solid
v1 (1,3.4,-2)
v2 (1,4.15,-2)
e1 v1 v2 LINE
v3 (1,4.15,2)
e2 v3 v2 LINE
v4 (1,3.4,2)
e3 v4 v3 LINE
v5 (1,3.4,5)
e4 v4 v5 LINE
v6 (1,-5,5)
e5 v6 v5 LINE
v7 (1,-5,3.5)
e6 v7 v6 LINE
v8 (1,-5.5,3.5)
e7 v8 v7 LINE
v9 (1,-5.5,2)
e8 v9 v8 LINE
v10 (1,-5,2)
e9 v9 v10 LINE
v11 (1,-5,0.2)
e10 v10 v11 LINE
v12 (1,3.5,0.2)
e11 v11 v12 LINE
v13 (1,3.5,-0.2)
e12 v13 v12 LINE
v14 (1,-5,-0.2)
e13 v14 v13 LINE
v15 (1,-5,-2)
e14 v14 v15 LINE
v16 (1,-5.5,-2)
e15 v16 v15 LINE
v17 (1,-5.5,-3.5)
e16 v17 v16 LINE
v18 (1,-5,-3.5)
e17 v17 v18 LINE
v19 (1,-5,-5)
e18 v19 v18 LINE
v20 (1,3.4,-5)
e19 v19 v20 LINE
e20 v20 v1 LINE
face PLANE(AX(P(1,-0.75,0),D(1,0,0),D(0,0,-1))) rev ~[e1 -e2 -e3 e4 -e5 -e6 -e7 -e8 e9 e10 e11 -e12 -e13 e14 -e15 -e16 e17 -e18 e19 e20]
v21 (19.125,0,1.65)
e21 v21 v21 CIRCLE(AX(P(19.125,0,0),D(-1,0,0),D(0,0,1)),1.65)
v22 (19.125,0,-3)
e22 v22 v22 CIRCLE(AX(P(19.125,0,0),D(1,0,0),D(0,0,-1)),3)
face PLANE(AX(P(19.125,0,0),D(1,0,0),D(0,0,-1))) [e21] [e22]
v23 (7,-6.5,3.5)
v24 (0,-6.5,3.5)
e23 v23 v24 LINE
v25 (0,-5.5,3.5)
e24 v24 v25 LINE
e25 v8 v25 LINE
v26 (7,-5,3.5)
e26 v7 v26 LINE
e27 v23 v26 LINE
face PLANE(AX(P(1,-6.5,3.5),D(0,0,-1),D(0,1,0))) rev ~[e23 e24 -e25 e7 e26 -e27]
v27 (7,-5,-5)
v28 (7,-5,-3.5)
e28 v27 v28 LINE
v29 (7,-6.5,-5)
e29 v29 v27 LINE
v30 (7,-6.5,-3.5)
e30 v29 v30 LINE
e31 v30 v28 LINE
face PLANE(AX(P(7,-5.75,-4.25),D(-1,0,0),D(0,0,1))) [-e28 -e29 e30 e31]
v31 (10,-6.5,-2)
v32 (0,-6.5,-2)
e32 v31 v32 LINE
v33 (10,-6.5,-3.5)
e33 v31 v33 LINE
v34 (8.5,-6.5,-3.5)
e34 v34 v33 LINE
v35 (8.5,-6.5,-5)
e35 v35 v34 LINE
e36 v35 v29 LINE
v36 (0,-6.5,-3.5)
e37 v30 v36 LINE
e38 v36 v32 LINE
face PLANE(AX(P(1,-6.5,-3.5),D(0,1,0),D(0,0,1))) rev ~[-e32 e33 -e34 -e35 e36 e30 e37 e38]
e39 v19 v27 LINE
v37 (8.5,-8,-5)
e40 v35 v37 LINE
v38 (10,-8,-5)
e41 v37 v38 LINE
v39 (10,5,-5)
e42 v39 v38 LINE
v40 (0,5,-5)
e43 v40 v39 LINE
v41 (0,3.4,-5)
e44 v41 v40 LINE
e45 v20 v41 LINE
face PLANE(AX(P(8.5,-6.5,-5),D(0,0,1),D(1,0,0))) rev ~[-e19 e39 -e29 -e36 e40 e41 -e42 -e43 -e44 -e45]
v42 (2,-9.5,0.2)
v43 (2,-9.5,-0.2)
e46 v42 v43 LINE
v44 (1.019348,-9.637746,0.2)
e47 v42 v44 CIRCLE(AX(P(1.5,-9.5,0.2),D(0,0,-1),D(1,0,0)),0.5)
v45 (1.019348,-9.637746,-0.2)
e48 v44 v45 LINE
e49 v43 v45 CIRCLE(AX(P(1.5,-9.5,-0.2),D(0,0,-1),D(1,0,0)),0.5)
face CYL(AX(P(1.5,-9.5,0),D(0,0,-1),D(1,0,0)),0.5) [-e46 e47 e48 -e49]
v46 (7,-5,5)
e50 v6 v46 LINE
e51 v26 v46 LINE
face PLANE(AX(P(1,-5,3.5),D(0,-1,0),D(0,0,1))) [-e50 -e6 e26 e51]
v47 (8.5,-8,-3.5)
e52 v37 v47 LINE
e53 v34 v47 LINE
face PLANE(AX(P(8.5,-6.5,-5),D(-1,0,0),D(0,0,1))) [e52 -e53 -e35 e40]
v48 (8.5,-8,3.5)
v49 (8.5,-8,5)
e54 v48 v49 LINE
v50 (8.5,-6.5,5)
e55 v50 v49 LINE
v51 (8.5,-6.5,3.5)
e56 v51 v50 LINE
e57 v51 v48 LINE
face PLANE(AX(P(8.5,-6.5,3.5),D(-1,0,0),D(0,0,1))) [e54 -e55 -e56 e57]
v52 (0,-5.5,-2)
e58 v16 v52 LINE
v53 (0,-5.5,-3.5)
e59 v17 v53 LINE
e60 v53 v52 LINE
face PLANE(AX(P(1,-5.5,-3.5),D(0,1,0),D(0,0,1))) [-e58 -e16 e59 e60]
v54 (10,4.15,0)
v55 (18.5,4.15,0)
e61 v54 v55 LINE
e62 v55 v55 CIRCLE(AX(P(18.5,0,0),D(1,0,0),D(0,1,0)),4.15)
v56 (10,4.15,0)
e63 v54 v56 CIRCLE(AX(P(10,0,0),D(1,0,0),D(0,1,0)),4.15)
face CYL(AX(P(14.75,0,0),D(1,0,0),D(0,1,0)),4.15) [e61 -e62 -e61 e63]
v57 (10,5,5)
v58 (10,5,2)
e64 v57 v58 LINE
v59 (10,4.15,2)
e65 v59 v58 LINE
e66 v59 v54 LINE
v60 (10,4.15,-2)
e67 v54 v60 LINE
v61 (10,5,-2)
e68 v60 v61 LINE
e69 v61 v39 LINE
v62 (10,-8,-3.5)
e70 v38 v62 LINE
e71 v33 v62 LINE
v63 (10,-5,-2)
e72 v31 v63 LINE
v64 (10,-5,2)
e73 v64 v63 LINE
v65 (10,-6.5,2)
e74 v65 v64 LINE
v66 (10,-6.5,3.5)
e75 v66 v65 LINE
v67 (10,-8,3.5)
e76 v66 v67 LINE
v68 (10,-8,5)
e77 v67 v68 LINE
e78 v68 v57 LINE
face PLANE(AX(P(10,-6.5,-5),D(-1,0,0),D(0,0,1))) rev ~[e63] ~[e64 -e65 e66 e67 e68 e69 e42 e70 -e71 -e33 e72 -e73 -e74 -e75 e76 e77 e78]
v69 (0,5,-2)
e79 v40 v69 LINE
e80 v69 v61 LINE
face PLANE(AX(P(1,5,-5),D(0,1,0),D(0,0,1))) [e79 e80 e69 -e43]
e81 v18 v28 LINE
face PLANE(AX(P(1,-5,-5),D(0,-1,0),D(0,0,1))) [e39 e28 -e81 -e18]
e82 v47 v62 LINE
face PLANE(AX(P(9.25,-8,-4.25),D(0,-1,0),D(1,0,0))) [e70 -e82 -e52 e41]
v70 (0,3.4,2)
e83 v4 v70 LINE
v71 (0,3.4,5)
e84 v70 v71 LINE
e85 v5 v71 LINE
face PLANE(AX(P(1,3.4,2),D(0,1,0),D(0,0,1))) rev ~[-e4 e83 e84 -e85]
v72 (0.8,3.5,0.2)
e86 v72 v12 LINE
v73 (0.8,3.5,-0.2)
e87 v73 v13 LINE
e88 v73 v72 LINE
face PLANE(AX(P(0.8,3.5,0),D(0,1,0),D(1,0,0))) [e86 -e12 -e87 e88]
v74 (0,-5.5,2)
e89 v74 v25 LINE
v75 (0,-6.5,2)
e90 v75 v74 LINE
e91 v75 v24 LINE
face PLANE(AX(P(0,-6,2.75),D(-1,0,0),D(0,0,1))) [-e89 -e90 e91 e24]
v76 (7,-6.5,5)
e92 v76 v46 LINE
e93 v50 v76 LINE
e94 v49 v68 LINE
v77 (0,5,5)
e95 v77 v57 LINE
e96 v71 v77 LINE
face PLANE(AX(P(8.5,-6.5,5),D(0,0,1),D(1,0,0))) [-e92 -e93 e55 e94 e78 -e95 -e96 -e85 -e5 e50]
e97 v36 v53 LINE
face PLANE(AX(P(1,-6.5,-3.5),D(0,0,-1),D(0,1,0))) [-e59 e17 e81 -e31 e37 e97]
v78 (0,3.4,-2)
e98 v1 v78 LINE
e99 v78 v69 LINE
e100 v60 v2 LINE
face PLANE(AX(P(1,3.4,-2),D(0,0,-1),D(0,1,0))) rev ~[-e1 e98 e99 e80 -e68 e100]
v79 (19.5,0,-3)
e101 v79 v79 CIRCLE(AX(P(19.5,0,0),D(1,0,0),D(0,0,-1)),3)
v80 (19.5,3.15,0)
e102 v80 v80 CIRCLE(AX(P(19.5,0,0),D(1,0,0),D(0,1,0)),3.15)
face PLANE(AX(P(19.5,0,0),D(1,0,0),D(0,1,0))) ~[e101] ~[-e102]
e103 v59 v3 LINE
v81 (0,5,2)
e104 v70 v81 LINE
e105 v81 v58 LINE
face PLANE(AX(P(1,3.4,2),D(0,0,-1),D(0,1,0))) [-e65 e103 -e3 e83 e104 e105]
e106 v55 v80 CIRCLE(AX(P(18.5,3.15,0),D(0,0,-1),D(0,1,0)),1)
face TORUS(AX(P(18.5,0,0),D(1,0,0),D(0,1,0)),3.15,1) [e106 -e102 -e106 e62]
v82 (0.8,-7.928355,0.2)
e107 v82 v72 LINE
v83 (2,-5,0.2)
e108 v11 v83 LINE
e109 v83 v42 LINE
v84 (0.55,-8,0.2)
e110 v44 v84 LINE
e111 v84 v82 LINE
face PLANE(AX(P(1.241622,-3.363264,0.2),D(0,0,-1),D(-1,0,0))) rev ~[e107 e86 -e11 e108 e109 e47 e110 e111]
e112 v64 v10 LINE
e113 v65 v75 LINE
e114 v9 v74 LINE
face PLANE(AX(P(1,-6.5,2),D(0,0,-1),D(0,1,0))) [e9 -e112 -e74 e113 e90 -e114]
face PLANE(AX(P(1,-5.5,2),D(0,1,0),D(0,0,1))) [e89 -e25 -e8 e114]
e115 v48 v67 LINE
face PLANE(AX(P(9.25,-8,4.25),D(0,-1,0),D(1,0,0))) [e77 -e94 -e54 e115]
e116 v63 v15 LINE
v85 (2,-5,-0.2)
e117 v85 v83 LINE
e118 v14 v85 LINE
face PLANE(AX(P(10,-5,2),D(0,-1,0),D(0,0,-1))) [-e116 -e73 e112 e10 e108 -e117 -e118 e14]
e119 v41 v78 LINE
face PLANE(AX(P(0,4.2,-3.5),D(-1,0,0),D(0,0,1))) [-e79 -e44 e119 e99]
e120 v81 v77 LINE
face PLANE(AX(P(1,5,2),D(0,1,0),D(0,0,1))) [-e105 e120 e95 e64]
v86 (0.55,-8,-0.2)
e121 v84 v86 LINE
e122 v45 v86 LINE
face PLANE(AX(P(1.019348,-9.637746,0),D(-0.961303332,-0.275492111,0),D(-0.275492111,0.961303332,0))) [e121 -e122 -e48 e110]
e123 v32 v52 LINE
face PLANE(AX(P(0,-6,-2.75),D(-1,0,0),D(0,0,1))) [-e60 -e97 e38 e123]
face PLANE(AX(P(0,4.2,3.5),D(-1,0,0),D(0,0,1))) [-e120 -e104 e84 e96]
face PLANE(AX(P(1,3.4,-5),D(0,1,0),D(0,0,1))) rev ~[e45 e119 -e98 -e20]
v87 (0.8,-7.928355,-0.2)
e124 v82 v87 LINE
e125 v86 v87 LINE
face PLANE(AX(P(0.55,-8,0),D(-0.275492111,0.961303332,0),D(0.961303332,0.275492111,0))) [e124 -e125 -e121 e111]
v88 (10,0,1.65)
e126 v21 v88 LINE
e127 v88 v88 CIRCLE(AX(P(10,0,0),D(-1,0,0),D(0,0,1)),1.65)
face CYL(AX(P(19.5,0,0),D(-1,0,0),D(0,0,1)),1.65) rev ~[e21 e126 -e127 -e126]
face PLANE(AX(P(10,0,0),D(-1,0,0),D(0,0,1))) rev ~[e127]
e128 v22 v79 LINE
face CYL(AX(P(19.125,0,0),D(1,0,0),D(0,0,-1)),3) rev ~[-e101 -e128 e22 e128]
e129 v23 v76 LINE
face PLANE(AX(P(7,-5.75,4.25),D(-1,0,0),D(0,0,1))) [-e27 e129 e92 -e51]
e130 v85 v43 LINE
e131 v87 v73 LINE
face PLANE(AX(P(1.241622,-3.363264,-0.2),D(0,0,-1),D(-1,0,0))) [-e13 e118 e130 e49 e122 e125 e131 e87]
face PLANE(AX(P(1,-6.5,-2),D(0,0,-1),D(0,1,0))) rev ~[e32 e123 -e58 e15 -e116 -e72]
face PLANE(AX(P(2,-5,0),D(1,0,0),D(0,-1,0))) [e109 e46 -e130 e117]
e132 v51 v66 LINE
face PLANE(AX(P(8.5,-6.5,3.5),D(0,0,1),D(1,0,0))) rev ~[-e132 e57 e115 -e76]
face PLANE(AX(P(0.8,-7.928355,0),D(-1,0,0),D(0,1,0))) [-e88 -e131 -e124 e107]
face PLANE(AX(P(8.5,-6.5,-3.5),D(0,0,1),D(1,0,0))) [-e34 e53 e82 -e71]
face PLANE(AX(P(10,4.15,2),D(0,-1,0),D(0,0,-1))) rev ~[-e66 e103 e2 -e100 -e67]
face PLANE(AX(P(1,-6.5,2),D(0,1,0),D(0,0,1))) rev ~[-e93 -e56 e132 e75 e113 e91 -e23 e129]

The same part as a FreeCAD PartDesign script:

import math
import FreeCAD as App
import Part
import Sketcher

V = App.Vector


def edges_at(feature, points):
    """Names of the edges that pass closest to the given points."""
    edges = feature.Shape.Edges
    near = lambda p: min(range(len(edges)), key=lambda i: edges[i].distToShape(Part.Vertex(*p))[0])
    return sorted({f"Edge{near(p) + 1}" for p in points})

doc = App.newDocument("Part")
params = doc.addObject("Spreadsheet::Sheet", "Params")
for row, (alias, value) in enumerate([
    ("sketch1_height", "10 mm"),
    ("sketch1_width", "11.5 mm"),
    ("pad1_length", "9 mm"),
    ("sketch2_height", "4 mm"),
    ("sketch2_width", "0.85 mm"),
    ("sketch3_height", "3 mm"),
    ("sketch3_width", "1.6 mm"),
    ("pad2_length", "1 mm"),
    ("sketch4_height", "3 mm"),
    ("sketch4_width", "1.6 mm"),
    ("pad3_length", "1 mm"),
    ("sketch5_height", "4 mm"),
    ("sketch5_width", "1.5 mm"),
    ("sketch6_width", "1 mm"),
    ("sketch6_height", "1.5 mm"),
    ("pad4_length", "1 mm"),
    ("sketch7_width", "1.5 mm"),
    ("pocket3_length", "6 mm"),
    ("sketch8_width", "1 mm"),
    ("sketch8_height", "1.5 mm"),
    ("pad5_length", "1 mm"),
    ("sketch9_width", "1.5 mm"),
    ("pocket4_length", "6 mm"),
    ("sketch10_width", "1.5 mm"),
    ("pad6_length", "1.5 mm"),
    ("sketch11_width", "1.5 mm"),
    ("pad7_length", "1.5 mm"),
    ("sketch12_width", "9.5 mm"),
    ("sketch12_height", "4.15 mm"),
    ("revolution_angle", "360 deg"),
    ("sketch13_diameter", "3.3 mm"),
    ("hole_diameter", "3.3 mm"),
    ("hole_depth", "9.5 mm"),
    ("hole_cbore_diameter", "6 mm"),
    ("hole_cbore_depth", "0.375 mm"),
    ("fillet_radius", "1 mm"),
    ("sketch14_radius", "0.5 mm"),
    ("sketch14_width", "0.2 mm"),
    ("sketch14_height", "4.5 mm"),
    ("pad8_length", "0.4 mm"),
], start=1):
    params.set(f"A{row}", alias)
    params.set(f"B{row}", "=" + value)
    params.setAlias(f"B{row}", alias)

body = doc.addObject("PartDesign::Body", "Body")

# Sketch on YZ plane
sketch1 = doc.addObject("Sketcher::SketchObject", "Sketch")
body.addObject(sketch1)
sketch1.AttachmentSupport = (doc.YZ_Plane, [""])
sketch1.MapMode = "FlatFace"
sketch1.AttachmentOffset = App.Placement(V(0, 0, 10), App.Rotation())
sketch1.addGeometry([
    Part.LineSegment(V(5, 5, 0), V(-6, 5, 0)),
    Part.LineSegment(V(-6, 5, 0), V(-6, -5, 0)),
    Part.LineSegment(V(-6, -5, 0), V(5, -5, 0)),
    Part.LineSegment(V(5, -5, 0), V(5, 5, 0)),
], False)
sketch1.addConstraint([
    Sketcher.Constraint("Coincident", 0, 2, 1, 1),
    Sketcher.Constraint("Coincident", 1, 2, 2, 1),
    Sketcher.Constraint("Coincident", 2, 2, 3, 1),
    Sketcher.Constraint("Coincident", 3, 2, 0, 1),
    Sketcher.Constraint("Horizontal", 0),
    Sketcher.Constraint("Vertical", 1),
    Sketcher.Constraint("Horizontal", 2),
    Sketcher.Constraint("Vertical", 3),
    Sketcher.Constraint("DistanceY", 1, 2, 1, 1, 10.0),
    Sketcher.Constraint("DistanceX", 0, 2, 0, 1, 11.5),
    Sketcher.Constraint("DistanceY", -1, 1, 0, 2, 5.0),
    Sketcher.Constraint("DistanceX", -1, 1, 2, 2, 5.0),
])
sketch1.setExpression("Constraints[8]", "Params.sketch1_height")
sketch1.setExpression("Constraints[9]", "Params.sketch1_width")
pad1 = doc.addObject("PartDesign::Pad", "Pad")
body.addObject(pad1)
pad1.Profile = sketch1
pad1.setExpression("Length", "Params.pad1_length")
pad1.Reversed = True

# Sketch on YZ plane
sketch2 = doc.addObject("Sketcher::SketchObject", "Sketch001")
body.addObject(sketch2)
sketch2.AttachmentSupport = (doc.YZ_Plane, [""])
sketch2.MapMode = "FlatFace"
sketch2.AttachmentOffset = App.Placement(V(0, 0, 10), App.Rotation())
sketch2.addGeometry([
    Part.LineSegment(V(5, 2, 0), V(4.2, 2, 0)),
    Part.LineSegment(V(4.2, 2, 0), V(4.2, -2, 0)),
    Part.LineSegment(V(4.2, -2, 0), V(5, -2, 0)),
    Part.LineSegment(V(5, -2, 0), V(5, 2, 0)),
], False)
sketch2.addConstraint([
    Sketcher.Constraint("Coincident", 0, 2, 1, 1),
    Sketcher.Constraint("Coincident", 1, 2, 2, 1),
    Sketcher.Constraint("Coincident", 2, 2, 3, 1),
    Sketcher.Constraint("Coincident", 3, 2, 0, 1),
    Sketcher.Constraint("Horizontal", 0),
    Sketcher.Constraint("Vertical", 1),
    Sketcher.Constraint("Horizontal", 2),
    Sketcher.Constraint("Vertical", 3),
    Sketcher.Constraint("DistanceY", 1, 2, 1, 1, 4.0),
    Sketcher.Constraint("DistanceY", -1, 1, 0, 2, 2.0),
    Sketcher.Constraint("DistanceX", -1, 1, 2, 2, 5.0),
    Sketcher.Constraint("DistanceX", 0, 2, 0, 1, 0.85),
])
sketch2.setExpression("Constraints[8]", "Params.sketch2_height")
sketch2.setExpression("Constraints[11]", "Params.sketch2_width")
pocket1 = doc.addObject("PartDesign::Pocket", "Pocket")
body.addObject(pocket1)
pocket1.Profile = sketch2
pocket1.Type = "ThroughAll"

# Sketch on YZ plane
sketch3 = doc.addObject("Sketcher::SketchObject", "Sketch002")
body.addObject(sketch3)
sketch3.AttachmentSupport = (doc.YZ_Plane, [""])
sketch3.MapMode = "FlatFace"
sketch3.AttachmentOffset = App.Placement(V(0, 0, 1), App.Rotation())
sketch3.addGeometry([
    Part.LineSegment(V(5, 2, 0), V(3.4, 2, 0)),
    Part.LineSegment(V(3.4, 2, 0), V(3.4, 5, 0)),
    Part.LineSegment(V(3.4, 5, 0), V(5, 5, 0)),
    Part.LineSegment(V(5, 5, 0), V(5, 2, 0)),
], False)
sketch3.addConstraint([
    Sketcher.Constraint("Coincident", 0, 2, 1, 1),
    Sketcher.Constraint("Coincident", 1, 2, 2, 1),
    Sketcher.Constraint("Coincident", 2, 2, 3, 1),
    Sketcher.Constraint("Coincident", 3, 2, 0, 1),
    Sketcher.Constraint("Horizontal", 0),
    Sketcher.Constraint("Vertical", 1),
    Sketcher.Constraint("Horizontal", 2),
    Sketcher.Constraint("Vertical", 3),
    Sketcher.Constraint("DistanceY", 1, 1, 1, 2, 3.0),
    Sketcher.Constraint("DistanceX", 0, 2, 0, 1, 1.6),
    Sketcher.Constraint("DistanceY", -1, 1, 0, 2, 2.0),
    Sketcher.Constraint("DistanceX", -1, 1, 2, 2, 5.0),
])
sketch3.setExpression("Constraints[8]", "Params.sketch3_height")
sketch3.setExpression("Constraints[9]", "Params.sketch3_width")
pad2 = doc.addObject("PartDesign::Pad", "Pad001")
body.addObject(pad2)
pad2.Profile = sketch3
pad2.setExpression("Length", "Params.pad2_length")
pad2.Reversed = True

# Sketch on YZ plane
sketch4 = doc.addObject("Sketcher::SketchObject", "Sketch003")
body.addObject(sketch4)
sketch4.AttachmentSupport = (doc.YZ_Plane, [""])
sketch4.MapMode = "FlatFace"
sketch4.AttachmentOffset = App.Placement(V(0, 0, 1), App.Rotation())
sketch4.addGeometry([
    Part.LineSegment(V(5, -5, 0), V(3.4, -5, 0)),
    Part.LineSegment(V(3.4, -5, 0), V(3.4, -2, 0)),
    Part.LineSegment(V(3.4, -2, 0), V(5, -2, 0)),
    Part.LineSegment(V(5, -2, 0), V(5, -5, 0)),
], False)
sketch4.addConstraint([
    Sketcher.Constraint("Coincident", 0, 2, 1, 1),
    Sketcher.Constraint("Coincident", 1, 2, 2, 1),
    Sketcher.Constraint("Coincident", 2, 2, 3, 1),
    Sketcher.Constraint("Coincident", 3, 2, 0, 1),
    Sketcher.Constraint("Horizontal", 0),
    Sketcher.Constraint("Vertical", 1),
    Sketcher.Constraint("Horizontal", 2),
    Sketcher.Constraint("Vertical", 3),
    Sketcher.Constraint("DistanceY", 1, 1, 1, 2, 3.0),
    Sketcher.Constraint("DistanceX", 0, 2, 0, 1, 1.6),
    Sketcher.Constraint("DistanceY", 0, 2, -1, 1, 5.0),
    Sketcher.Constraint("DistanceX", -1, 1, 2, 2, 5.0),
])
sketch4.setExpression("Constraints[8]", "Params.sketch4_height")
sketch4.setExpression("Constraints[9]", "Params.sketch4_width")
pad3 = doc.addObject("PartDesign::Pad", "Pad002")
body.addObject(pad3)
pad3.Profile = sketch4
pad3.setExpression("Length", "Params.pad3_length")
pad3.Reversed = True

# Sketch on YZ plane
sketch5 = doc.addObject("Sketcher::SketchObject", "Sketch004")
body.addObject(sketch5)
sketch5.AttachmentSupport = (doc.YZ_Plane, [""])
sketch5.MapMode = "FlatFace"
sketch5.AttachmentOffset = App.Placement(V(0, 0, 10), App.Rotation())
sketch5.addGeometry([
    Part.LineSegment(V(-5, 2, 0), V(-6.5, 2, 0)),
    Part.LineSegment(V(-6.5, 2, 0), V(-6.5, -2, 0)),
    Part.LineSegment(V(-6.5, -2, 0), V(-5, -2, 0)),
    Part.LineSegment(V(-5, -2, 0), V(-5, 2, 0)),
], False)
sketch5.addConstraint([
    Sketcher.Constraint("Coincident", 0, 2, 1, 1),
    Sketcher.Constraint("Coincident", 1, 2, 2, 1),
    Sketcher.Constraint("Coincident", 2, 2, 3, 1),
    Sketcher.Constraint("Coincident", 3, 2, 0, 1),
    Sketcher.Constraint("Horizontal", 0),
    Sketcher.Constraint("Vertical", 1),
    Sketcher.Constraint("Horizontal", 2),
    Sketcher.Constraint("Vertical", 3),
    Sketcher.Constraint("DistanceY", 1, 2, 1, 1, 4.0),
    Sketcher.Constraint("DistanceX", 0, 2, 0, 1, 1.5),
    Sketcher.Constraint("DistanceY", -1, 1, 0, 2, 2.0),
    Sketcher.Constraint("DistanceX", 2, 2, -1, 1, 5.0),
])
sketch5.setExpression("Constraints[8]", "Params.sketch5_height")
sketch5.setExpression("Constraints[9]", "Params.sketch5_width")
pocket2 = doc.addObject("PartDesign::Pocket", "Pocket001")
body.addObject(pocket2)
pocket2.Profile = sketch5
pocket2.Type = "ThroughAll"

# Sketch on YZ plane
sketch6 = doc.addObject("Sketcher::SketchObject", "Sketch005")
body.addObject(sketch6)
sketch6.AttachmentSupport = (doc.YZ_Plane, [""])
sketch6.MapMode = "FlatFace"
sketch6.AttachmentOffset = App.Placement(V(0, 0, 1), App.Rotation())
sketch6.addGeometry([
    Part.LineSegment(V(-5.5, 2, 0), V(-6.5, 2, 0)),
    Part.LineSegment(V(-6.5, 2, 0), V(-6.5, 3.5, 0)),
    Part.LineSegment(V(-6.5, 3.5, 0), V(-5.5, 3.5, 0)),
    Part.LineSegment(V(-5.5, 3.5, 0), V(-5.5, 2, 0)),
], False)
sketch6.addConstraint([
    Sketcher.Constraint("Coincident", 0, 2, 1, 1),
    Sketcher.Constraint("Coincident", 1, 2, 2, 1),
    Sketcher.Constraint("Coincident", 2, 2, 3, 1),
    Sketcher.Constraint("Coincident", 3, 2, 0, 1),
    Sketcher.Constraint("Horizontal", 0),
    Sketcher.Constraint("Vertical", 1),
    Sketcher.Constraint("Horizontal", 2),
    Sketcher.Constraint("Vertical", 3),
    Sketcher.Constraint("DistanceX", 0, 2, 0, 1, 1.0),
    Sketcher.Constraint("DistanceY", 1, 1, 1, 2, 1.5),
    Sketcher.Constraint("DistanceY", -1, 1, 0, 2, 2.0),
    Sketcher.Constraint("DistanceX", 0, 2, -1, 1, 6.5),
])
sketch6.setExpression("Constraints[8]", "Params.sketch6_width")
sketch6.setExpression("Constraints[9]", "Params.sketch6_height")
pad4 = doc.addObject("PartDesign::Pad", "Pad003")
body.addObject(pad4)
pad4.Profile = sketch6
pad4.setExpression("Length", "Params.pad4_length")
pad4.Reversed = True

# Sketch on YZ plane
sketch7 = doc.addObject("Sketcher::SketchObject", "Sketch006")
body.addObject(sketch7)
sketch7.AttachmentSupport = (doc.YZ_Plane, [""])
sketch7.MapMode = "FlatFace"
sketch7.AttachmentOffset = App.Placement(V(0, 0, 1), App.Rotation())
sketch7.addGeometry([
    Part.LineSegment(V(-5, 3.5, 0), V(-6.5, 3.5, 0)),
    Part.LineSegment(V(-6.5, 3.5, 0), V(-6.5, 5, 0)),
    Part.LineSegment(V(-6.5, 5, 0), V(-5, 5, 0)),
    Part.LineSegment(V(-5, 5, 0), V(-5, 3.5, 0)),
], False)
sketch7.addConstraint([
    Sketcher.Constraint("Coincident", 0, 2, 1, 1),
    Sketcher.Constraint("Coincident", 1, 2, 2, 1),
    Sketcher.Constraint("Coincident", 2, 2, 3, 1),
    Sketcher.Constraint("Coincident", 3, 2, 0, 1),
    Sketcher.Constraint("Horizontal", 0),
    Sketcher.Constraint("Vertical", 1),
    Sketcher.Constraint("Horizontal", 2),
    Sketcher.Constraint("Vertical", 3),
    Sketcher.Constraint("Equal", 2, 1),
    Sketcher.Constraint("DistanceX", 0, 2, 0, 1, 1.5),
    Sketcher.Constraint("DistanceY", -1, 1, 1, 2, 5.0),
    Sketcher.Constraint("DistanceX", 2, 2, -1, 1, 5.0),
])
sketch7.setExpression("Constraints[9]", "Params.sketch7_width")
pocket3 = doc.addObject("PartDesign::Pocket", "Pocket002")
body.addObject(pocket3)
pocket3.Profile = sketch7
pocket3.setExpression("Length", "Params.pocket3_length")
pocket3.Reversed = True

# Sketch on YZ plane
sketch8 = doc.addObject("Sketcher::SketchObject", "Sketch007")
body.addObject(sketch8)
sketch8.AttachmentSupport = (doc.YZ_Plane, [""])
sketch8.MapMode = "FlatFace"
sketch8.AttachmentOffset = App.Placement(V(0, 0, 1), App.Rotation())
sketch8.addGeometry([
    Part.LineSegment(V(-5.5, -3.5, 0), V(-6.5, -3.5, 0)),
    Part.LineSegment(V(-6.5, -3.5, 0), V(-6.5, -2, 0)),
    Part.LineSegment(V(-6.5, -2, 0), V(-5.5, -2, 0)),
    Part.LineSegment(V(-5.5, -2, 0), V(-5.5, -3.5, 0)),
], False)
sketch8.addConstraint([
    Sketcher.Constraint("Coincident", 0, 2, 1, 1),
    Sketcher.Constraint("Coincident", 1, 2, 2, 1),
    Sketcher.Constraint("Coincident", 2, 2, 3, 1),
    Sketcher.Constraint("Coincident", 3, 2, 0, 1),
    Sketcher.Constraint("Horizontal", 0),
    Sketcher.Constraint("Vertical", 1),
    Sketcher.Constraint("Horizontal", 2),
    Sketcher.Constraint("Vertical", 3),
    Sketcher.Constraint("DistanceX", 0, 2, 0, 1, 1.0),
    Sketcher.Constraint("DistanceY", 1, 1, 1, 2, 1.5),
    Sketcher.Constraint("DistanceY", 1, 2, -1, 1, 2.0),
    Sketcher.Constraint("DistanceX", 0, 2, -1, 1, 6.5),
])
sketch8.setExpression("Constraints[8]", "Params.sketch8_width")
sketch8.setExpression("Constraints[9]", "Params.sketch8_height")
pad5 = doc.addObject("PartDesign::Pad", "Pad004")
body.addObject(pad5)
pad5.Profile = sketch8
pad5.setExpression("Length", "Params.pad5_length")
pad5.Reversed = True

# Sketch on YZ plane
sketch9 = doc.addObject("Sketcher::SketchObject", "Sketch008")
body.addObject(sketch9)
sketch9.AttachmentSupport = (doc.YZ_Plane, [""])
sketch9.MapMode = "FlatFace"
sketch9.AttachmentOffset = App.Placement(V(0, 0, 1), App.Rotation())
sketch9.addGeometry([
    Part.LineSegment(V(-5, -5, 0), V(-6.5, -5, 0)),
    Part.LineSegment(V(-6.5, -5, 0), V(-6.5, -3.5, 0)),
    Part.LineSegment(V(-6.5, -3.5, 0), V(-5, -3.5, 0)),
    Part.LineSegment(V(-5, -3.5, 0), V(-5, -5, 0)),
], False)
sketch9.addConstraint([
    Sketcher.Constraint("Coincident", 0, 2, 1, 1),
    Sketcher.Constraint("Coincident", 1, 2, 2, 1),
    Sketcher.Constraint("Coincident", 2, 2, 3, 1),
    Sketcher.Constraint("Coincident", 3, 2, 0, 1),
    Sketcher.Constraint("Horizontal", 0),
    Sketcher.Constraint("Vertical", 1),
    Sketcher.Constraint("Horizontal", 2),
    Sketcher.Constraint("Vertical", 3),
    Sketcher.Constraint("Equal", 2, 1),
    Sketcher.Constraint("DistanceX", 0, 2, 0, 1, 1.5),
    Sketcher.Constraint("DistanceY", 0, 2, -1, 1, 5.0),
    Sketcher.Constraint("DistanceX", 2, 2, -1, 1, 5.0),
])
sketch9.setExpression("Constraints[9]", "Params.sketch9_width")
pocket4 = doc.addObject("PartDesign::Pocket", "Pocket003")
body.addObject(pocket4)
pocket4.Profile = sketch9
pocket4.setExpression("Length", "Params.pocket4_length")
pocket4.Reversed = True

# Sketch on XZ plane
sketch10 = doc.addObject("Sketcher::SketchObject", "Sketch009")
body.addObject(sketch10)
sketch10.AttachmentSupport = (doc.XZ_Plane, [""])
sketch10.MapMode = "FlatFace"
sketch10.AttachmentOffset = App.Placement(V(0, 0, 6.5), App.Rotation())
sketch10.addGeometry([
    Part.LineSegment(V(8.5, 5, 0), V(8.5, 3.5, 0)),
    Part.LineSegment(V(8.5, 3.5, 0), V(10, 3.5, 0)),
    Part.LineSegment(V(10, 3.5, 0), V(10, 5, 0)),
    Part.LineSegment(V(10, 5, 0), V(8.5, 5, 0)),
], False)
sketch10.addConstraint([
    Sketcher.Constraint("Coincident", 0, 2, 1, 1),
    Sketcher.Constraint("Coincident", 1, 2, 2, 1),
    Sketcher.Constraint("Coincident", 2, 2, 3, 1),
    Sketcher.Constraint("Coincident", 3, 2, 0, 1),
    Sketcher.Constraint("Vertical", 0),
    Sketcher.Constraint("Horizontal", 1),
    Sketcher.Constraint("Vertical", 2),
    Sketcher.Constraint("Horizontal", 3),
    Sketcher.Constraint("Equal", 3, 0),
    Sketcher.Constraint("DistanceX", 1, 1, 1, 2, 1.5),
    Sketcher.Constraint("DistanceX", -1, 1, 1, 2, 10.0),
    Sketcher.Constraint("DistanceY", -1, 1, 2, 2, 5.0),
])
sketch10.setExpression("Constraints[9]", "Params.sketch10_width")
pad6 = doc.addObject("PartDesign::Pad", "Pad005")
body.addObject(pad6)
pad6.Profile = sketch10
pad6.setExpression("Length", "Params.pad6_length")

# Sketch on XZ plane
sketch11 = doc.addObject("Sketcher::SketchObject", "Sketch010")
body.addObject(sketch11)
sketch11.AttachmentSupport = (doc.XZ_Plane, [""])
sketch11.MapMode = "FlatFace"
sketch11.AttachmentOffset = App.Placement(V(0, 0, 6.5), App.Rotation())
sketch11.addGeometry([
    Part.LineSegment(V(8.5, -3.5, 0), V(8.5, -5, 0)),
    Part.LineSegment(V(8.5, -5, 0), V(10, -5, 0)),
    Part.LineSegment(V(10, -5, 0), V(10, -3.5, 0)),
    Part.LineSegment(V(10, -3.5, 0), V(8.5, -3.5, 0)),
], False)
sketch11.addConstraint([
    Sketcher.Constraint("Coincident", 0, 2, 1, 1),
    Sketcher.Constraint("Coincident", 1, 2, 2, 1),
    Sketcher.Constraint("Coincident", 2, 2, 3, 1),
    Sketcher.Constraint("Coincident", 3, 2, 0, 1),
    Sketcher.Constraint("Vertical", 0),
    Sketcher.Constraint("Horizontal", 1),
    Sketcher.Constraint("Vertical", 2),
    Sketcher.Constraint("Horizontal", 3),
    Sketcher.Constraint("Equal", 3, 0),
    Sketcher.Constraint("DistanceX", 1, 1, 1, 2, 1.5),
    Sketcher.Constraint("DistanceY", 0, 2, -1, 1, 5.0),
    Sketcher.Constraint("DistanceX", -1, 1, 1, 2, 10.0),
])
sketch11.setExpression("Constraints[9]", "Params.sketch11_width")
pad7 = doc.addObject("PartDesign::Pad", "Pad006")
body.addObject(pad7)
pad7.Profile = sketch11
pad7.setExpression("Length", "Params.pad7_length")

# Sketch on XY plane
sketch12 = doc.addObject("Sketcher::SketchObject", "Sketch011")
body.addObject(sketch12)
sketch12.AttachmentSupport = (doc.XY_Plane, [""])
sketch12.MapMode = "FlatFace"
sketch12.addGeometry([
    Part.LineSegment(V(10, 4.2, 0), V(10, 0, 0)),
    Part.LineSegment(V(10, 0, 0), V(19.5, 0, 0)),
    Part.LineSegment(V(19.5, 0, 0), V(19.5, 4.2, 0)),
    Part.LineSegment(V(19.5, 4.2, 0), V(10, 4.2, 0)),
], False)
sketch12.addConstraint([
    Sketcher.Constraint("Coincident", 0, 2, 1, 1),
    Sketcher.Constraint("Coincident", 1, 2, 2, 1),
    Sketcher.Constraint("Coincident", 2, 2, 3, 1),
    Sketcher.Constraint("Coincident", 3, 2, 0, 1),
    Sketcher.Constraint("Vertical", 0),
    Sketcher.Constraint("Horizontal", 1),
    Sketcher.Constraint("Vertical", 2),
    Sketcher.Constraint("Horizontal", 3),
    Sketcher.Constraint("PointOnObject", 0, 2, -1),
    Sketcher.Constraint("DistanceX", 1, 1, 1, 2, 9.5),
    Sketcher.Constraint("DistanceX", -1, 1, 0, 2, 10.0),
    Sketcher.Constraint("DistanceY", 0, 2, 0, 1, 4.15),
])
sketch12.setExpression("Constraints[9]", "Params.sketch12_width")
sketch12.setExpression("Constraints[11]", "Params.sketch12_height")
revolution = doc.addObject("PartDesign::Revolution", "Revolution")
body.addObject(revolution)
revolution.Profile = sketch12
revolution.ReferenceAxis = (sketch12, ["H_Axis"])
revolution.setExpression("Angle", "Params.revolution_angle")

# Sketch on YZ plane
sketch13 = doc.addObject("Sketcher::SketchObject", "Sketch012")
body.addObject(sketch13)
sketch13.AttachmentSupport = (doc.YZ_Plane, [""])
sketch13.MapMode = "FlatFace"
sketch13.AttachmentOffset = App.Placement(V(0, 0, 19.5), App.Rotation())
sketch13.addGeometry(Part.Circle(V(0, 0, 0), V(0, 0, 1), 1.6), False)
sketch13.addConstraint([
    Sketcher.Constraint("Coincident", 0, 3, -1, 1),
    Sketcher.Constraint("Diameter", 0, 3.3),
])
sketch13.setExpression("Constraints[1]", "Params.sketch13_diameter")
doc.recompute()
hole = doc.addObject("PartDesign::Hole", "Hole")
body.addObject(hole)
hole.Profile = sketch13
hole.ThreadType = "None"
hole.setExpression("Diameter", "Params.hole_diameter")
hole.DepthType = "Dimension"
hole.setExpression("Depth", "Params.hole_depth")
hole.DrillPoint = "Flat"
hole.HoleCutType = "Counterbore"
hole.setExpression("HoleCutDiameter", "Params.hole_cbore_diameter")
hole.setExpression("HoleCutDepth", "Params.hole_cbore_depth")
doc.recompute()

fillet = doc.addObject("PartDesign::Fillet", "Fillet")
body.addObject(fillet)
fillet.Base = (hole, edges_at(hole, [(19.5, -4.15, 0)]))
fillet.setExpression("Radius", "Params.fillet_radius")

# Sketch on XY plane
sketch14 = doc.addObject("Sketcher::SketchObject", "Sketch013")
body.addObject(sketch14)
sketch14.AttachmentSupport = (doc.XY_Plane, [""])
sketch14.MapMode = "FlatFace"
sketch14.addGeometry([
    Part.LineSegment(V(2, -5, 0), V(2, -9.5, 0)),  # 0
    Part.ArcOfCircle(Part.Circle(V(1.5, -9.5, 0), V(0, 0, 1), 0.5), math.radians(-164), math.radians(0)),  # 1
    Part.LineSegment(V(1.02, -9.64, 0), V(0.55, -8, 0)),  # 2
    Part.LineSegment(V(0.55, -8, 0), V(0.8, -7.93, 0)),  # 3
    Part.LineSegment(V(0.8, -7.93, 0), V(0.8, 3.5, 0)),  # 4
    Part.LineSegment(V(0.8, 3.5, 0), V(1, 3.5, 0)),  # 5
    Part.LineSegment(V(1, 3.5, 0), V(2, -5, 0)),  # 6
], False)
sketch14.addConstraint([
    Sketcher.Constraint("Tangent", 0, 2, 1, 2),
    Sketcher.Constraint("Tangent", 1, 1, 2, 1),
    Sketcher.Constraint("Coincident", 2, 2, 3, 1),
    Sketcher.Constraint("Coincident", 3, 2, 4, 1),
    Sketcher.Constraint("Coincident", 4, 2, 5, 1),
    Sketcher.Constraint("Coincident", 5, 2, 6, 1),
    Sketcher.Constraint("Coincident", 6, 2, 0, 1),
    Sketcher.Constraint("Vertical", 0),
    Sketcher.Constraint("Vertical", 4),
    Sketcher.Constraint("Horizontal", 5),
    Sketcher.Constraint("Perpendicular", 2, 3),
    Sketcher.Constraint("Radius", 1, 0.5),
    Sketcher.Constraint("DistanceX", 5, 1, 5, 2, 0.2),
    Sketcher.Constraint("DistanceY", 0, 2, 0, 1, 4.5),
    Sketcher.Constraint("DistanceX", -1, 1, 0, 2, 2.0),
    Sketcher.Constraint("DistanceY", 2, 2, -1, 1, 8.0),
    Sketcher.Constraint("DistanceX", -1, 1, 5, 2, 1.0),
    Sketcher.Constraint("DistanceY", 6, 2, -1, 1, 5.0),
    Sketcher.Constraint("DistanceY", 1, 3, 4, 2, 13.0),
    Sketcher.Constraint("DistanceX", -1, 1, 2, 2, 0.55),
])
sketch14.setExpression("Constraints[11]", "Params.sketch14_radius")
sketch14.setExpression("Constraints[12]", "Params.sketch14_width")
sketch14.setExpression("Constraints[13]", "Params.sketch14_height")
pad8 = doc.addObject("PartDesign::Pad", "Pad007")
body.addObject(pad8)
pad8.Profile = sketch14
pad8.setExpression("Length", "Params.pad8_length")
pad8.Midplane = True

doc.recompute()
